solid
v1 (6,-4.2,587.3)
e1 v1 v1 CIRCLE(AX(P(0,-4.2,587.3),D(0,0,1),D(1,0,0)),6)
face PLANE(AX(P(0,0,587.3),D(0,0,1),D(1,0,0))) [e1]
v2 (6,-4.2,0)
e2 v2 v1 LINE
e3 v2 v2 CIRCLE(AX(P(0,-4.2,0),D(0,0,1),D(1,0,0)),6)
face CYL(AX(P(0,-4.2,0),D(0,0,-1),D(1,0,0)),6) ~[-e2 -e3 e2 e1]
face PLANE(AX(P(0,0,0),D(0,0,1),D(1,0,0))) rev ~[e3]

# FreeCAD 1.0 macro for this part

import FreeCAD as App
import Part
import Sketcher

V = App.Vector

doc = App.newDocument("Part")
body = doc.addObject("PartDesign::Body", "Body")

sketch1 = body.newObject("Sketcher::SketchObject", "Sketch")
sketch1.AttachmentSupport = (doc.getObject("XY_Plane"), [""])
sketch1.MapMode = "FlatFace"
sketch1.addGeometry(Part.Circle(V(0, -4, 0), V(0, 0, 1), 6), False)
sketch1.addConstraint(Sketcher.Constraint("PointOnObject", 0, 3, -2))
sketch1.addConstraint(Sketcher.Constraint("Diameter", 0, 12.0))
sketch1.addConstraint(Sketcher.Constraint("DistanceY", 0, 3, -1, 1, 4.2))
pad1 = body.newObject("PartDesign::Pad", "Pad")
pad1.Profile = sketch1
pad1.Length = 587.3

doc.recompute()
